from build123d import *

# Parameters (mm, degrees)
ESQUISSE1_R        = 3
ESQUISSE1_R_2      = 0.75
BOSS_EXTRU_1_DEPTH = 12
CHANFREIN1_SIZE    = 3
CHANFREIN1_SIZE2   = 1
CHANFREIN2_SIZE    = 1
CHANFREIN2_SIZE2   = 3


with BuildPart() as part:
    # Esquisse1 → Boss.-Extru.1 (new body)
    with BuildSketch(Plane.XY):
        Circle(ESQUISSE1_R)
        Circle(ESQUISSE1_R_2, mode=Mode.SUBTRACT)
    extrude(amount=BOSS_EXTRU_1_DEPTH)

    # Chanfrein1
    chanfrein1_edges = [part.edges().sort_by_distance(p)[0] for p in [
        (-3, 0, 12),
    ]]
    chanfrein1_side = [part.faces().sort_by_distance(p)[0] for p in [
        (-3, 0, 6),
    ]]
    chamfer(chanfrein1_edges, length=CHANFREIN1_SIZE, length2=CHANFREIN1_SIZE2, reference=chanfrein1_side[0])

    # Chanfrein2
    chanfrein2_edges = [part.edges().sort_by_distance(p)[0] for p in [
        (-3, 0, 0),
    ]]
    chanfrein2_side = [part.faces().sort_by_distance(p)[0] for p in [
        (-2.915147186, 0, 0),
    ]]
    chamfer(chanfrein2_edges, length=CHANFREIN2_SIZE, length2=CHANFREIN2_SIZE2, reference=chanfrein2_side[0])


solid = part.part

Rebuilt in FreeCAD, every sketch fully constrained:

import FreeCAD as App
import Part
import Sketcher

V = App.Vector
Q = App.Units.Quantity


def edges_at(feature, points):
    """Names of the edges that pass closest to the given points."""
    edges = feature.Shape.Edges
    near = lambda p: min(range(len(edges)), key=lambda i: edges[i].distToShape(Part.Vertex(*p))[0])
    return sorted({f"Edge{near(p) + 1}" for p in points})

doc = App.newDocument("Part")
params = doc.addObject("Spreadsheet::Sheet", "Params")
for row, (alias, value) in enumerate([
    ("sketch1_diameter", "6 mm"),
    ("sketch1_diameter2", "1.5 mm"),
    ("pad1_length", "12 mm"),
    ("chamfer_size", "3 mm"),
    ("chamfer_size2", "1 mm"),
    ("chamfer2_size", "1 mm"),
    ("chamfer2_size2", "3 mm"),
], start=1):
    params.set(f"A{row}", alias)
    params.set(f"B{row}", "=" + value)
    params.setAlias(f"B{row}", alias)

body = doc.addObject("PartDesign::Body", "Body")

sketch1 = doc.addObject("Sketcher::SketchObject", "Sketch")
body.addObject(sketch1)
sketch1.AttachmentSupport = (doc.XY_Plane, [""])
sketch1.MapMode = "FlatFace"
sketch1.addGeometry(Part.Circle(V(0, 0, 0), V(0, 0, 1), 3), False)
sketch1.addGeometry(Part.Circle(V(0, 0, 0), V(0, 0, 1), 0.8), False)
sketch1.addConstraint(Sketcher.Constraint("Coincident", 0, 3, -1, 1))
sketch1.addConstraint(Sketcher.Constraint("Coincident", 1, 3, -1, 1))
sketch1.addConstraint(Sketcher.Constraint("Diameter", 0, Q("6 mm")))
sketch1.addConstraint(Sketcher.Constraint("Diameter", 1, Q("1.5 mm")))
sketch1.setExpression("Constraints[2]", "Params.sketch1_diameter")
sketch1.setExpression("Constraints[3]", "Params.sketch1_diameter2")
pad1 = doc.addObject("PartDesign::Pad", "Pad")
body.addObject(pad1)
pad1.Profile = sketch1
pad1.setExpression("Length", "Params.pad1_length")
doc.recompute()

chamfer = doc.addObject("PartDesign::Chamfer", "Chamfer")
body.addObject(chamfer)
chamfer.Base = (pad1, edges_at(pad1, [(-3, 0, 12)]))
chamfer.ChamferType = "Two distances"
chamfer.setExpression("Size", "Params.chamfer_size")
chamfer.setExpression("Size2", "Params.chamfer_size2")
doc.recompute()

chamfer2 = doc.addObject("PartDesign::Chamfer", "Chamfer001")
body.addObject(chamfer2)
chamfer2.Base = (chamfer, edges_at(chamfer, [(-3, 0, 0)]))
chamfer2.ChamferType = "Two distances"
chamfer2.setExpression("Size", "Params.chamfer2_size")
chamfer2.setExpression("Size2", "Params.chamfer2_size2")
chamfer2.FlipDirection = True

doc.recompute()
